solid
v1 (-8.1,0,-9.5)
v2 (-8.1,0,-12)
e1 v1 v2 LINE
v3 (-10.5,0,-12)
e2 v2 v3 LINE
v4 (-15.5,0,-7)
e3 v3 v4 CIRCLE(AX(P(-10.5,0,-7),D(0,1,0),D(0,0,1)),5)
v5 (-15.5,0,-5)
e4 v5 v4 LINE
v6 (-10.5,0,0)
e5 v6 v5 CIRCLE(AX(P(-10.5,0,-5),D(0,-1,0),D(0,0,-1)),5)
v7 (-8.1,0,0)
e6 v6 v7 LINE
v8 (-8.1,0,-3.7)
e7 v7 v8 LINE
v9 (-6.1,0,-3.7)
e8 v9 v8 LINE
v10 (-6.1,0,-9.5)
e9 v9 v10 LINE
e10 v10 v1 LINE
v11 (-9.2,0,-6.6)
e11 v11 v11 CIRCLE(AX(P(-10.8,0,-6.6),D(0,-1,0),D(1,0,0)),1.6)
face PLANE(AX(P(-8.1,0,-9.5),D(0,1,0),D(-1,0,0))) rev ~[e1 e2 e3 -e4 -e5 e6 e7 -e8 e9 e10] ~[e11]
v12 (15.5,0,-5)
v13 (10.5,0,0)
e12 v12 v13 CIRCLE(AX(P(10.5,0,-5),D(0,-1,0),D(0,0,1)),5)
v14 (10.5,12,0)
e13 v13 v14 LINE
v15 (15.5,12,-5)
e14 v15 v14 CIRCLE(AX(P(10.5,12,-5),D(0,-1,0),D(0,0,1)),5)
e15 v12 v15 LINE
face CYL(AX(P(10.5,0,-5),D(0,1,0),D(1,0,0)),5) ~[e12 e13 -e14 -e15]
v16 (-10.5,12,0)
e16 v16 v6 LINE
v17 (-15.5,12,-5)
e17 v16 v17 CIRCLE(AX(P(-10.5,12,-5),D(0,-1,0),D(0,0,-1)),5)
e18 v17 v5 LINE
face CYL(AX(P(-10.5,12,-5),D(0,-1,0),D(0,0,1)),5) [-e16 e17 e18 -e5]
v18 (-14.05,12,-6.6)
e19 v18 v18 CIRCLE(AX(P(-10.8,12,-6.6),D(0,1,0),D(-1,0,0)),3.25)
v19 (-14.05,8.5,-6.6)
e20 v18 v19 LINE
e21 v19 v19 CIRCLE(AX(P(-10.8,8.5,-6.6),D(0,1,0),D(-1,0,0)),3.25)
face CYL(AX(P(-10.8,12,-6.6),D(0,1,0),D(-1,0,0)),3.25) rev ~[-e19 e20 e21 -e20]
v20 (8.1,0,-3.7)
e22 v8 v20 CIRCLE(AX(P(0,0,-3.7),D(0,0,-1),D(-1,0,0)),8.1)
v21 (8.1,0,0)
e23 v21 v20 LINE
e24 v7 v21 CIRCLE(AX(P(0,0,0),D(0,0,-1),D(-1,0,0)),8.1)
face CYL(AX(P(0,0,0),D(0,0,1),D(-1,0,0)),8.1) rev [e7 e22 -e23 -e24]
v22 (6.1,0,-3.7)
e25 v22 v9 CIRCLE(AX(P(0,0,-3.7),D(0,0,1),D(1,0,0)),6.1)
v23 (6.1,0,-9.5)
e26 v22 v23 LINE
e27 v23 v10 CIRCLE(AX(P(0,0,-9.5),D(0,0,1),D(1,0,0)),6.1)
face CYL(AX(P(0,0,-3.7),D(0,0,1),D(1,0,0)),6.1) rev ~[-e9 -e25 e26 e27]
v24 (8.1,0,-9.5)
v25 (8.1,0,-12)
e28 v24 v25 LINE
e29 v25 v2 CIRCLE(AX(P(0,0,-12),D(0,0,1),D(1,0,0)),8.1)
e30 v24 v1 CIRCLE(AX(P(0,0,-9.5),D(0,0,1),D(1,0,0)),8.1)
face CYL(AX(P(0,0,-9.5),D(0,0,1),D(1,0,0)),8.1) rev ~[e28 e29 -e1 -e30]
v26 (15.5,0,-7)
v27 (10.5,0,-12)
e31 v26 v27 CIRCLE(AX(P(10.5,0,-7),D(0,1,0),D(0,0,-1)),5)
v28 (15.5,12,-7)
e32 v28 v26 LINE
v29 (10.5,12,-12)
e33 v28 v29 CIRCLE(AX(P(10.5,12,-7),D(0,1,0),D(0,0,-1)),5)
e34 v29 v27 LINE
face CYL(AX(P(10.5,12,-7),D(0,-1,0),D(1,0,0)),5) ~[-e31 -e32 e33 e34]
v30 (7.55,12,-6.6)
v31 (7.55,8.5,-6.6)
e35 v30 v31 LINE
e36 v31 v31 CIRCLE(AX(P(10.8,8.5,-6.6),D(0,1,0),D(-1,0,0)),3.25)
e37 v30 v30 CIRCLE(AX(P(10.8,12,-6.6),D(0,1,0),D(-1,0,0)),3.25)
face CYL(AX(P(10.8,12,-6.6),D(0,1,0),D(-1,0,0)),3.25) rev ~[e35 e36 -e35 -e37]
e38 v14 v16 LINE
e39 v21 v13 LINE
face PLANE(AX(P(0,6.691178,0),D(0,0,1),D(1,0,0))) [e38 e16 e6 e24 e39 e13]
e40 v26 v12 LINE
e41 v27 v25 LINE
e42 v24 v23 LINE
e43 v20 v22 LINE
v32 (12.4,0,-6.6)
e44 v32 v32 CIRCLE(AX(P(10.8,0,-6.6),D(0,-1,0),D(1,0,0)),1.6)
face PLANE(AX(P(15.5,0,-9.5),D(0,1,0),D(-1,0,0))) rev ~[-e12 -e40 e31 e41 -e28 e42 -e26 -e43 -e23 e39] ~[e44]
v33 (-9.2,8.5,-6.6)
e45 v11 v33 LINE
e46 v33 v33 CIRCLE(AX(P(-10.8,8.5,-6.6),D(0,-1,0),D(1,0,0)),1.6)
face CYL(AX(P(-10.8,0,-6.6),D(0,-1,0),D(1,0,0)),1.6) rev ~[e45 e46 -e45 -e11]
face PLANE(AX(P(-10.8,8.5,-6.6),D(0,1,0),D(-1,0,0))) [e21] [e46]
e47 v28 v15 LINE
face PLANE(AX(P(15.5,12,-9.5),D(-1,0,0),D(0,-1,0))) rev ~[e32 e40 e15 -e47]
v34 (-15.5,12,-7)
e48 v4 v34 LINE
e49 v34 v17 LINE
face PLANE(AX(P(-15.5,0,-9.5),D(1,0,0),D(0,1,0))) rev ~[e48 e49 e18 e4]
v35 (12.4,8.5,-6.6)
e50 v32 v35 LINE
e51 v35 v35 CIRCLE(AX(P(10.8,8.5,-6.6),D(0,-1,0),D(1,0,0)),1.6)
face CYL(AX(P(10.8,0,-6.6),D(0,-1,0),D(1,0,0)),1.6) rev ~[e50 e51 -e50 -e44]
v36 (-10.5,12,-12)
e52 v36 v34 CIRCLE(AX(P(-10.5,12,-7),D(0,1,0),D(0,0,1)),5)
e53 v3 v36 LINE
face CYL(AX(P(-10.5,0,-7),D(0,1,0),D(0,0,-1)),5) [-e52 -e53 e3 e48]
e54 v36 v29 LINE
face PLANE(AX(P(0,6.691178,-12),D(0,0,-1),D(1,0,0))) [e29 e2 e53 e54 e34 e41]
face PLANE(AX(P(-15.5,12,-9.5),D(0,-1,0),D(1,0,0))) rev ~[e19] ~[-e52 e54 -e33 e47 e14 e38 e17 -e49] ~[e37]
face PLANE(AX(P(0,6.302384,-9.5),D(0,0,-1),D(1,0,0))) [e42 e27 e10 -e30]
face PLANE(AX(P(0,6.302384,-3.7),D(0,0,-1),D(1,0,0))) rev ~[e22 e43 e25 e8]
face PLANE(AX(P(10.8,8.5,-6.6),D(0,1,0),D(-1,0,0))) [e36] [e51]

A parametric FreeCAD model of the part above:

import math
import FreeCAD as App
import Part
import Sketcher

V = App.Vector


def edges_at(feature, points):
    """Names of the edges that pass closest to the given points."""
    edges = feature.Shape.Edges
    near = lambda p: min(range(len(edges)), key=lambda i: edges[i].distToShape(Part.Vertex(*p))[0])
    return sorted({f"Edge{near(p) + 1}" for p in points})

doc = App.newDocument("Part")
body = doc.addObject("PartDesign::Body", "Body")

# Sketch on XY plane
sketch1 = body.newObject("Sketcher::SketchObject", "Sketch")
sketch1.AttachmentSupport = (doc.getObject("XY_Plane"), [""])
sketch1.MapMode = "FlatFace"
sketch1.addGeometry(Part.LineSegment(V(16, 12, 0), V(-16, 12, 0)), False)
sketch1.addGeometry(Part.LineSegment(V(-16, 12, 0), V(-16, 0, 0)), False)
sketch1.addGeometry(Part.LineSegment(V(-16, 0, 0), V(-8, 0, 0)), False)
sketch1.addGeometry(Part.ArcOfCircle(Part.Circle(V(0, 0, 0), V(0, 0, 1), 8), math.radians(0), math.radians(180)), False)
sketch1.addGeometry(Part.LineSegment(V(8, 0, 0), V(16, 0, 0)), False)
sketch1.addGeometry(Part.LineSegment(V(16, 0, 0), V(16, 12, 0)), False)
sketch1.addConstraint(Sketcher.Constraint("Coincident", 0, 2, 1, 1))
sketch1.addConstraint(Sketcher.Constraint("Coincident", 1, 2, 2, 1))
sketch1.addConstraint(Sketcher.Constraint("Coincident", 2, 2, 3, 2))
sketch1.addConstraint(Sketcher.Constraint("Coincident", 3, 1, 4, 1))
sketch1.addConstraint(Sketcher.Constraint("Coincident", 4, 2, 5, 1))
sketch1.addConstraint(Sketcher.Constraint("Coincident", 5, 2, 0, 1))
sketch1.addConstraint(Sketcher.Constraint("Horizontal", 0))
sketch1.addConstraint(Sketcher.Constraint("Vertical", 1))
sketch1.addConstraint(Sketcher.Constraint("Horizontal", 2))
sketch1.addConstraint(Sketcher.Constraint("Horizontal", 4))
sketch1.addConstraint(Sketcher.Constraint("Vertical", 5))
sketch1.addConstraint(Sketcher.Constraint("Coincident", 3, 3, -1, 1))
sketch1.addConstraint(Sketcher.Constraint("Symmetric", 1, 2, 4, 2, -1, 1))
sketch1.addConstraint(Sketcher.Constraint("PointOnObject", 1, 2, -1))
sketch1.addConstraint(Sketcher.Constraint("Radius", 3, 8.1))
sketch1.addConstraint(Sketcher.Constraint("DistanceX", 0, 2, 0, 1, 31.0))
sketch1.addConstraint(Sketcher.Constraint("DistanceY", 1, 2, 1, 1, 12.0))
pad1 = body.newObject("PartDesign::Pad", "Pad")
pad1.Profile = sketch1
pad1.Length = 3.7
pad1.Reversed = True

# Sketch on XY plane
sketch2 = body.newObject("Sketcher::SketchObject", "Sketch001")
sketch2.AttachmentSupport = (doc.getObject("XY_Plane"), [""])
sketch2.MapMode = "FlatFace"
sketch2.AttachmentOffset = App.Placement(V(0, 0, -3.7), App.Rotation())
sketch2.addGeometry(Part.LineSegment(V(16, 12, 0), V(16, 0, 0)), False)
sketch2.addGeometry(Part.LineSegment(V(16, 0, 0), V(6, 0, 0)), False)
sketch2.addGeometry(Part.ArcOfCircle(Part.Circle(V(0, 0, 0), V(0, 0, 1), 6), math.radians(0), math.radians(180)), False)
sketch2.addGeometry(Part.LineSegment(V(-6, 0, 0), V(-16, 0, 0)), False)
sketch2.addGeometry(Part.LineSegment(V(-16, 0, 0), V(-16, 12, 0)), False)
sketch2.addGeometry(Part.LineSegment(V(-16, 12, 0), V(16, 12, 0)), False)
sketch2.addConstraint(Sketcher.Constraint("Coincident", 0, 2, 1, 1))
sketch2.addConstraint(Sketcher.Constraint("Coincident", 1, 2, 2, 1))
sketch2.addConstraint(Sketcher.Constraint("Coincident", 2, 2, 3, 1))
sketch2.addConstraint(Sketcher.Constraint("Coincident", 3, 2, 4, 1))
sketch2.addConstraint(Sketcher.Constraint("Coincident", 4, 2, 5, 1))
sketch2.addConstraint(Sketcher.Constraint("Coincident", 5, 2, 0, 1))
sketch2.addConstraint(Sketcher.Constraint("Vertical", 0))
sketch2.addConstraint(Sketcher.Constraint("Horizontal", 1))
sketch2.addConstraint(Sketcher.Constraint("Horizontal", 3))
sketch2.addConstraint(Sketcher.Constraint("Vertical", 4))
sketch2.addConstraint(Sketcher.Constraint("Horizontal", 5))
sketch2.addConstraint(Sketcher.Constraint("Coincident", 2, 3, -1, 1))
sketch2.addConstraint(Sketcher.Constraint("Symmetric", 0, 2, 3, 2, -1, 1))
sketch2.addConstraint(Sketcher.Constraint("PointOnObject", 0, 2, -1))
sketch2.addConstraint(Sketcher.Constraint("Radius", 2, 6.1))
sketch2.addConstraint(Sketcher.Constraint("DistanceX", 5, 1, 5, 2, 31.0))
sketch2.addConstraint(Sketcher.Constraint("DistanceY", 0, 2, 0, 1, 12.0))
pad2 = body.newObject("PartDesign::Pad", "Pad001")
pad2.Profile = sketch2
pad2.Length = 5.8
pad2.Reversed = True

# Sketch on XY plane
sketch3 = body.newObject("Sketcher::SketchObject", "Sketch002")
sketch3.AttachmentSupport = (doc.getObject("XY_Plane"), [""])
sketch3.MapMode = "FlatFace"
sketch3.AttachmentOffset = App.Placement(V(0, 0, -9.5), App.Rotation())
sketch3.addGeometry(Part.LineSegment(V(16, 0, 0), V(8, 0, 0)), False)
sketch3.addGeometry(Part.ArcOfCircle(Part.Circle(V(0, 0, 0), V(0, 0, 1), 8), math.radians(0), math.radians(180)), False)
sketch3.addGeometry(Part.LineSegment(V(-8, 0, 0), V(-16, 0, 0)), False)
sketch3.addGeometry(Part.LineSegment(V(-16, 0, 0), V(-16, 12, 0)), False)
sketch3.addGeometry(Part.LineSegment(V(-16, 12, 0), V(16, 12, 0)), False)
sketch3.addGeometry(Part.LineSegment(V(16, 12, 0), V(16, 0, 0)), False)
sketch3.addConstraint(Sketcher.Constraint("Coincident", 0, 2, 1, 1))
sketch3.addConstraint(Sketcher.Constraint("Coincident", 1, 2, 2, 1))
sketch3.addConstraint(Sketcher.Constraint("Coincident", 2, 2, 3, 1))
sketch3.addConstraint(Sketcher.Constraint("Coincident", 3, 2, 4, 1))
sketch3.addConstraint(Sketcher.Constraint("Coincident", 4, 2, 5, 1))
sketch3.addConstraint(Sketcher.Constraint("Coincident", 5, 2, 0, 1))
sketch3.addConstraint(Sketcher.Constraint("Horizontal", 0))
sketch3.addConstraint(Sketcher.Constraint("Horizontal", 2))
sketch3.addConstraint(Sketcher.Constraint("Vertical", 3))
sketch3.addConstraint(Sketcher.Constraint("Horizontal", 4))
sketch3.addConstraint(Sketcher.Constraint("Vertical", 5))
sketch3.addConstraint(Sketcher.Constraint("Coincident", 1, 3, -1, 1))
sketch3.addConstraint(Sketcher.Constraint("Symmetric", 2, 2, 5, 2, -1, 1))
sketch3.addConstraint(Sketcher.Constraint("PointOnObject", 0, 2, -1))
sketch3.addConstraint(Sketcher.Constraint("Radius", 1, 8.1))
sketch3.addConstraint(Sketcher.Constraint("DistanceX", 4, 1, 4, 2, 31.0))
sketch3.addConstraint(Sketcher.Constraint("DistanceY", 3, 1, 3, 2, 12.0))
pad3 = body.newObject("PartDesign::Pad", "Pad002")
pad3.Profile = sketch3
pad3.Length = 2.5
pad3.Reversed = True

# Sketch on XZ plane
sketch4 = body.newObject("Sketcher::SketchObject", "Sketch003")
sketch4.AttachmentSupport = (doc.getObject("XZ_Plane"), [""])
sketch4.MapMode = "FlatFace"
sketch4.addGeometry(Part.Circle(V(-10.8, -6.6, 0), V(0, 0, 1), 1.6), False)
sketch4.addGeometry(Part.Circle(V(10.8, -6.6, 0), V(0, 0, 1), 1.6), False)
sketch4.addConstraint(Sketcher.Constraint("Equal", 0, 1))
sketch4.addConstraint(Sketcher.Constraint("Symmetric", 0, 3, 1, 3, -2))
sketch4.addConstraint(Sketcher.Constraint("Diameter", 0, 3.2))
sketch4.addConstraint(Sketcher.Constraint("DistanceX", 0, 3, -1, 1, 10.8))
sketch4.addConstraint(Sketcher.Constraint("DistanceY", 0, 3, -1, 1, 6.6))
pocket1 = body.newObject("PartDesign::Pocket", "Pocket")
pocket1.Profile = sketch4
pocket1.Type = "ThroughAll"

# Sketch on XZ plane
sketch5 = body.newObject("Sketcher::SketchObject", "Sketch004")
sketch5.AttachmentSupport = (doc.getObject("XZ_Plane"), [""])
sketch5.MapMode = "FlatFace"
sketch5.AttachmentOffset = App.Placement(V(0, 0, -12), App.Rotation())
sketch5.addGeometry(Part.Circle(V(10.8, -6.6, 0), V(0, 0, 1), 3.2), False)
sketch5.addGeometry(Part.Circle(V(-10.8, -6.6, 0), V(0, 0, 1), 3.2), False)
sketch5.addConstraint(Sketcher.Constraint("Equal", 0, 1))
sketch5.addConstraint(Sketcher.Constraint("Symmetric", 0, 3, 1, 3, -2))
sketch5.addConstraint(Sketcher.Constraint("Diameter", 0, 6.5))
sketch5.addConstraint(Sketcher.Constraint("DistanceX", -1, 1, 0, 3, 10.8))
sketch5.addConstraint(Sketcher.Constraint("DistanceY", 0, 3, -1, 1, 6.6))
pocket2 = body.newObject("PartDesign::Pocket", "Pocket001")
pocket2.Profile = sketch5
pocket2.Length = 3.5
pocket2.Reversed = True
doc.recompute()

fillet = body.newObject("PartDesign::Fillet", "Fillet")
fillet.Base = (pocket2, edges_at(pocket2, [
    (15.5, 6, 0),
    (15.5, 6, -12),
    (-15.5, 6, 0),
    (-15.5, 6, -12),
]))
fillet.Radius = 5

doc.recompute()
